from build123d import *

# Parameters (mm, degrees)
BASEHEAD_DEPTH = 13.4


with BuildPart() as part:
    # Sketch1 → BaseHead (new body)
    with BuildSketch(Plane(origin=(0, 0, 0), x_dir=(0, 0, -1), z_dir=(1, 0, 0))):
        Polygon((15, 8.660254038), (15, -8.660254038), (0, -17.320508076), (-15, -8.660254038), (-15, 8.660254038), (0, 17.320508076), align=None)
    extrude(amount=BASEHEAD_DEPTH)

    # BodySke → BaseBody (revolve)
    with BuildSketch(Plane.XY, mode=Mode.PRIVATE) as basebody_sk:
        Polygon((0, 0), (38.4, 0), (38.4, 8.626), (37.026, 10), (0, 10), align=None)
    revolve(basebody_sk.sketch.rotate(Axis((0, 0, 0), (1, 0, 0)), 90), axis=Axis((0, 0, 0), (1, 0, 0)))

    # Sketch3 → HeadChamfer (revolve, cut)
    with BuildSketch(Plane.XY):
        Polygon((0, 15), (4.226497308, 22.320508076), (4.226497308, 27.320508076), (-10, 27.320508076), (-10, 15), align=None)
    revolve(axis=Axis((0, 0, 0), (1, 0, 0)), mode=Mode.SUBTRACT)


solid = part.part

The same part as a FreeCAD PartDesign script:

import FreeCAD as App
import Part
import Sketcher

V = App.Vector
Q = App.Units.Quantity


def add_polygon(sketch, points):
    """Adds a closed chain of lines whose ends are joined by coincident constraints."""
    first, n = sketch.GeometryCount, len(points)
    for a, b in zip(points, points[1:] + points[:1]):
        sketch.addGeometry(Part.LineSegment(App.Vector(*a, 0), App.Vector(*b, 0)), False)
    for i in range(n):
        sketch.addConstraint(Sketcher.Constraint("Coincident", first + i, 2, first + (i + 1) % n, 1))

doc = App.newDocument("Part")
body = doc.addObject("PartDesign::Body", "Body")

sketch1 = body.newObject("Sketcher::SketchObject", "Sketch")
sketch1.AttachmentSupport = (doc.getObject("YZ_Plane"), [""])
sketch1.MapMode = "FlatFace"
add_polygon(sketch1, [(-9, -15), (9, -15), (17, 0), (9, 15), (-9, 15), (-17, 0)])
sketch1.addConstraint([
    Sketcher.Constraint("Horizontal", 0),
    Sketcher.Constraint("Horizontal", 3),
    Sketcher.Constraint("Symmetric", 0, 2, 3, 2, -1, 1),
    Sketcher.Constraint("Symmetric", 1, 2, 4, 2, -1, 1),
    Sketcher.Constraint("PointOnObject", 1, 2, -1),
    Sketcher.Constraint("Parallel", 2, 5),
    Sketcher.Constraint("Vertical", 0, 2, 2, 2),
    Sketcher.Constraint("Angle", 1, Q("60 deg")),
    Sketcher.Constraint("DistanceY", 0, 2, -1, 1, 15.0),
    Sketcher.Constraint("DistanceX", 0, 1, 0, 2, 17.320508),
])
pad1 = body.newObject("PartDesign::Pad", "Pad")
pad1.Profile = sketch1
pad1.Length = 13.4

sketch2 = body.newObject("Sketcher::SketchObject", "Sketch001")
sketch2.AttachmentSupport = (doc.getObject("XY_Plane"), [""])
sketch2.MapMode = "FlatFace"
add_polygon(sketch2, [(0, 0), (38.4, 0), (38.4, 8.6), (37, 10), (0, 10)])
sketch2.addConstraint([
    Sketcher.Constraint("Horizontal", 0),
    Sketcher.Constraint("Vertical", 1),
    Sketcher.Constraint("Horizontal", 3),
    Sketcher.Constraint("Vertical", 4),
    Sketcher.Constraint("Coincident", 4, 2, -1, 1),
    Sketcher.Constraint("DistanceY", 4, 2, 4, 1, 10.0),
    Sketcher.Constraint("Angle", 2, Q("135 deg")),
    Sketcher.Constraint("DistanceX", 0, 1, 0, 2, 38.4),
    Sketcher.Constraint("DistanceX", 3, 2, 3, 1, 37.026),
])
revolution = body.newObject("PartDesign::Revolution", "Revolution")
revolution.Profile = sketch2
revolution.ReferenceAxis = (sketch2, ["H_Axis"])
revolution.Angle = 360

sketch3 = body.newObject("Sketcher::SketchObject", "Sketch002")
sketch3.AttachmentSupport = (doc.getObject("XY_Plane"), [""])
sketch3.MapMode = "FlatFace"
add_polygon(sketch3, [(0, 15), (4, 22), (4, 27), (-10, 27), (-10, 15)])
sketch3.addConstraint([
    Sketcher.Constraint("Vertical", 1),
    Sketcher.Constraint("Horizontal", 2),
    Sketcher.Constraint("Vertical", 3),
    Sketcher.Constraint("Horizontal", 4),
    Sketcher.Constraint("PointOnObject", 4, 2, -2),
    Sketcher.Constraint("DistanceX", 4, 1, 4, 2, 10.0),
    Sketcher.Constraint("DistanceY", 1, 1, 1, 2, 5.0),
    Sketcher.Constraint("Angle", 0, Q("60 deg")),
    Sketcher.Constraint("DistanceY", -1, 1, 3, 2, 15.0),
    Sketcher.Constraint("DistanceY", 3, 2, 3, 1, 12.320508),
])
groove = body.newObject("PartDesign::Groove", "Groove")
groove.Profile = sketch3
groove.ReferenceAxis = (sketch3, ["H_Axis"])
groove.Angle = 360

doc.recompute()
